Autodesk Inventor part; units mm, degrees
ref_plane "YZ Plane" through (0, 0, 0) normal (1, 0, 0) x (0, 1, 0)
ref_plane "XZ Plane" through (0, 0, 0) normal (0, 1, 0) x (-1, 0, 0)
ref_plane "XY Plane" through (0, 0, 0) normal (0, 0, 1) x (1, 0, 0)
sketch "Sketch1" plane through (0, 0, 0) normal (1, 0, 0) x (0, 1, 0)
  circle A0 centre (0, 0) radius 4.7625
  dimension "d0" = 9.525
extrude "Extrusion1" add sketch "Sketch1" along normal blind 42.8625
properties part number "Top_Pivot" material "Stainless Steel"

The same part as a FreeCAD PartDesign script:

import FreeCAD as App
import Part
import Sketcher
Q = App.Units.Quantity

doc = App.newDocument("Part")
body = doc.addObject("PartDesign::Body", "Body")

# Sketch on YZ plane
sketch1 = doc.addObject("Sketcher::SketchObject", "Sketch")
body.addObject(sketch1)
sketch1.AttachmentSupport = (doc.YZ_Plane, [""])
sketch1.MapMode = "FlatFace"
sketch1.addGeometry(Part.Circle(App.Vector(0, 0, 0), App.Vector(0, 0, 1), 4.8), False)
sketch1.addConstraint([
    Sketcher.Constraint("Coincident", 0, 3, -1, 1),
    Sketcher.Constraint("Diameter", 0, Q("0.375 in")),
])
pad1 = doc.addObject("PartDesign::Pad", "Pad")
body.addObject(pad1)
pad1.Profile = sketch1
pad1.Length = Q("1.6875 in")

doc.recompute()
